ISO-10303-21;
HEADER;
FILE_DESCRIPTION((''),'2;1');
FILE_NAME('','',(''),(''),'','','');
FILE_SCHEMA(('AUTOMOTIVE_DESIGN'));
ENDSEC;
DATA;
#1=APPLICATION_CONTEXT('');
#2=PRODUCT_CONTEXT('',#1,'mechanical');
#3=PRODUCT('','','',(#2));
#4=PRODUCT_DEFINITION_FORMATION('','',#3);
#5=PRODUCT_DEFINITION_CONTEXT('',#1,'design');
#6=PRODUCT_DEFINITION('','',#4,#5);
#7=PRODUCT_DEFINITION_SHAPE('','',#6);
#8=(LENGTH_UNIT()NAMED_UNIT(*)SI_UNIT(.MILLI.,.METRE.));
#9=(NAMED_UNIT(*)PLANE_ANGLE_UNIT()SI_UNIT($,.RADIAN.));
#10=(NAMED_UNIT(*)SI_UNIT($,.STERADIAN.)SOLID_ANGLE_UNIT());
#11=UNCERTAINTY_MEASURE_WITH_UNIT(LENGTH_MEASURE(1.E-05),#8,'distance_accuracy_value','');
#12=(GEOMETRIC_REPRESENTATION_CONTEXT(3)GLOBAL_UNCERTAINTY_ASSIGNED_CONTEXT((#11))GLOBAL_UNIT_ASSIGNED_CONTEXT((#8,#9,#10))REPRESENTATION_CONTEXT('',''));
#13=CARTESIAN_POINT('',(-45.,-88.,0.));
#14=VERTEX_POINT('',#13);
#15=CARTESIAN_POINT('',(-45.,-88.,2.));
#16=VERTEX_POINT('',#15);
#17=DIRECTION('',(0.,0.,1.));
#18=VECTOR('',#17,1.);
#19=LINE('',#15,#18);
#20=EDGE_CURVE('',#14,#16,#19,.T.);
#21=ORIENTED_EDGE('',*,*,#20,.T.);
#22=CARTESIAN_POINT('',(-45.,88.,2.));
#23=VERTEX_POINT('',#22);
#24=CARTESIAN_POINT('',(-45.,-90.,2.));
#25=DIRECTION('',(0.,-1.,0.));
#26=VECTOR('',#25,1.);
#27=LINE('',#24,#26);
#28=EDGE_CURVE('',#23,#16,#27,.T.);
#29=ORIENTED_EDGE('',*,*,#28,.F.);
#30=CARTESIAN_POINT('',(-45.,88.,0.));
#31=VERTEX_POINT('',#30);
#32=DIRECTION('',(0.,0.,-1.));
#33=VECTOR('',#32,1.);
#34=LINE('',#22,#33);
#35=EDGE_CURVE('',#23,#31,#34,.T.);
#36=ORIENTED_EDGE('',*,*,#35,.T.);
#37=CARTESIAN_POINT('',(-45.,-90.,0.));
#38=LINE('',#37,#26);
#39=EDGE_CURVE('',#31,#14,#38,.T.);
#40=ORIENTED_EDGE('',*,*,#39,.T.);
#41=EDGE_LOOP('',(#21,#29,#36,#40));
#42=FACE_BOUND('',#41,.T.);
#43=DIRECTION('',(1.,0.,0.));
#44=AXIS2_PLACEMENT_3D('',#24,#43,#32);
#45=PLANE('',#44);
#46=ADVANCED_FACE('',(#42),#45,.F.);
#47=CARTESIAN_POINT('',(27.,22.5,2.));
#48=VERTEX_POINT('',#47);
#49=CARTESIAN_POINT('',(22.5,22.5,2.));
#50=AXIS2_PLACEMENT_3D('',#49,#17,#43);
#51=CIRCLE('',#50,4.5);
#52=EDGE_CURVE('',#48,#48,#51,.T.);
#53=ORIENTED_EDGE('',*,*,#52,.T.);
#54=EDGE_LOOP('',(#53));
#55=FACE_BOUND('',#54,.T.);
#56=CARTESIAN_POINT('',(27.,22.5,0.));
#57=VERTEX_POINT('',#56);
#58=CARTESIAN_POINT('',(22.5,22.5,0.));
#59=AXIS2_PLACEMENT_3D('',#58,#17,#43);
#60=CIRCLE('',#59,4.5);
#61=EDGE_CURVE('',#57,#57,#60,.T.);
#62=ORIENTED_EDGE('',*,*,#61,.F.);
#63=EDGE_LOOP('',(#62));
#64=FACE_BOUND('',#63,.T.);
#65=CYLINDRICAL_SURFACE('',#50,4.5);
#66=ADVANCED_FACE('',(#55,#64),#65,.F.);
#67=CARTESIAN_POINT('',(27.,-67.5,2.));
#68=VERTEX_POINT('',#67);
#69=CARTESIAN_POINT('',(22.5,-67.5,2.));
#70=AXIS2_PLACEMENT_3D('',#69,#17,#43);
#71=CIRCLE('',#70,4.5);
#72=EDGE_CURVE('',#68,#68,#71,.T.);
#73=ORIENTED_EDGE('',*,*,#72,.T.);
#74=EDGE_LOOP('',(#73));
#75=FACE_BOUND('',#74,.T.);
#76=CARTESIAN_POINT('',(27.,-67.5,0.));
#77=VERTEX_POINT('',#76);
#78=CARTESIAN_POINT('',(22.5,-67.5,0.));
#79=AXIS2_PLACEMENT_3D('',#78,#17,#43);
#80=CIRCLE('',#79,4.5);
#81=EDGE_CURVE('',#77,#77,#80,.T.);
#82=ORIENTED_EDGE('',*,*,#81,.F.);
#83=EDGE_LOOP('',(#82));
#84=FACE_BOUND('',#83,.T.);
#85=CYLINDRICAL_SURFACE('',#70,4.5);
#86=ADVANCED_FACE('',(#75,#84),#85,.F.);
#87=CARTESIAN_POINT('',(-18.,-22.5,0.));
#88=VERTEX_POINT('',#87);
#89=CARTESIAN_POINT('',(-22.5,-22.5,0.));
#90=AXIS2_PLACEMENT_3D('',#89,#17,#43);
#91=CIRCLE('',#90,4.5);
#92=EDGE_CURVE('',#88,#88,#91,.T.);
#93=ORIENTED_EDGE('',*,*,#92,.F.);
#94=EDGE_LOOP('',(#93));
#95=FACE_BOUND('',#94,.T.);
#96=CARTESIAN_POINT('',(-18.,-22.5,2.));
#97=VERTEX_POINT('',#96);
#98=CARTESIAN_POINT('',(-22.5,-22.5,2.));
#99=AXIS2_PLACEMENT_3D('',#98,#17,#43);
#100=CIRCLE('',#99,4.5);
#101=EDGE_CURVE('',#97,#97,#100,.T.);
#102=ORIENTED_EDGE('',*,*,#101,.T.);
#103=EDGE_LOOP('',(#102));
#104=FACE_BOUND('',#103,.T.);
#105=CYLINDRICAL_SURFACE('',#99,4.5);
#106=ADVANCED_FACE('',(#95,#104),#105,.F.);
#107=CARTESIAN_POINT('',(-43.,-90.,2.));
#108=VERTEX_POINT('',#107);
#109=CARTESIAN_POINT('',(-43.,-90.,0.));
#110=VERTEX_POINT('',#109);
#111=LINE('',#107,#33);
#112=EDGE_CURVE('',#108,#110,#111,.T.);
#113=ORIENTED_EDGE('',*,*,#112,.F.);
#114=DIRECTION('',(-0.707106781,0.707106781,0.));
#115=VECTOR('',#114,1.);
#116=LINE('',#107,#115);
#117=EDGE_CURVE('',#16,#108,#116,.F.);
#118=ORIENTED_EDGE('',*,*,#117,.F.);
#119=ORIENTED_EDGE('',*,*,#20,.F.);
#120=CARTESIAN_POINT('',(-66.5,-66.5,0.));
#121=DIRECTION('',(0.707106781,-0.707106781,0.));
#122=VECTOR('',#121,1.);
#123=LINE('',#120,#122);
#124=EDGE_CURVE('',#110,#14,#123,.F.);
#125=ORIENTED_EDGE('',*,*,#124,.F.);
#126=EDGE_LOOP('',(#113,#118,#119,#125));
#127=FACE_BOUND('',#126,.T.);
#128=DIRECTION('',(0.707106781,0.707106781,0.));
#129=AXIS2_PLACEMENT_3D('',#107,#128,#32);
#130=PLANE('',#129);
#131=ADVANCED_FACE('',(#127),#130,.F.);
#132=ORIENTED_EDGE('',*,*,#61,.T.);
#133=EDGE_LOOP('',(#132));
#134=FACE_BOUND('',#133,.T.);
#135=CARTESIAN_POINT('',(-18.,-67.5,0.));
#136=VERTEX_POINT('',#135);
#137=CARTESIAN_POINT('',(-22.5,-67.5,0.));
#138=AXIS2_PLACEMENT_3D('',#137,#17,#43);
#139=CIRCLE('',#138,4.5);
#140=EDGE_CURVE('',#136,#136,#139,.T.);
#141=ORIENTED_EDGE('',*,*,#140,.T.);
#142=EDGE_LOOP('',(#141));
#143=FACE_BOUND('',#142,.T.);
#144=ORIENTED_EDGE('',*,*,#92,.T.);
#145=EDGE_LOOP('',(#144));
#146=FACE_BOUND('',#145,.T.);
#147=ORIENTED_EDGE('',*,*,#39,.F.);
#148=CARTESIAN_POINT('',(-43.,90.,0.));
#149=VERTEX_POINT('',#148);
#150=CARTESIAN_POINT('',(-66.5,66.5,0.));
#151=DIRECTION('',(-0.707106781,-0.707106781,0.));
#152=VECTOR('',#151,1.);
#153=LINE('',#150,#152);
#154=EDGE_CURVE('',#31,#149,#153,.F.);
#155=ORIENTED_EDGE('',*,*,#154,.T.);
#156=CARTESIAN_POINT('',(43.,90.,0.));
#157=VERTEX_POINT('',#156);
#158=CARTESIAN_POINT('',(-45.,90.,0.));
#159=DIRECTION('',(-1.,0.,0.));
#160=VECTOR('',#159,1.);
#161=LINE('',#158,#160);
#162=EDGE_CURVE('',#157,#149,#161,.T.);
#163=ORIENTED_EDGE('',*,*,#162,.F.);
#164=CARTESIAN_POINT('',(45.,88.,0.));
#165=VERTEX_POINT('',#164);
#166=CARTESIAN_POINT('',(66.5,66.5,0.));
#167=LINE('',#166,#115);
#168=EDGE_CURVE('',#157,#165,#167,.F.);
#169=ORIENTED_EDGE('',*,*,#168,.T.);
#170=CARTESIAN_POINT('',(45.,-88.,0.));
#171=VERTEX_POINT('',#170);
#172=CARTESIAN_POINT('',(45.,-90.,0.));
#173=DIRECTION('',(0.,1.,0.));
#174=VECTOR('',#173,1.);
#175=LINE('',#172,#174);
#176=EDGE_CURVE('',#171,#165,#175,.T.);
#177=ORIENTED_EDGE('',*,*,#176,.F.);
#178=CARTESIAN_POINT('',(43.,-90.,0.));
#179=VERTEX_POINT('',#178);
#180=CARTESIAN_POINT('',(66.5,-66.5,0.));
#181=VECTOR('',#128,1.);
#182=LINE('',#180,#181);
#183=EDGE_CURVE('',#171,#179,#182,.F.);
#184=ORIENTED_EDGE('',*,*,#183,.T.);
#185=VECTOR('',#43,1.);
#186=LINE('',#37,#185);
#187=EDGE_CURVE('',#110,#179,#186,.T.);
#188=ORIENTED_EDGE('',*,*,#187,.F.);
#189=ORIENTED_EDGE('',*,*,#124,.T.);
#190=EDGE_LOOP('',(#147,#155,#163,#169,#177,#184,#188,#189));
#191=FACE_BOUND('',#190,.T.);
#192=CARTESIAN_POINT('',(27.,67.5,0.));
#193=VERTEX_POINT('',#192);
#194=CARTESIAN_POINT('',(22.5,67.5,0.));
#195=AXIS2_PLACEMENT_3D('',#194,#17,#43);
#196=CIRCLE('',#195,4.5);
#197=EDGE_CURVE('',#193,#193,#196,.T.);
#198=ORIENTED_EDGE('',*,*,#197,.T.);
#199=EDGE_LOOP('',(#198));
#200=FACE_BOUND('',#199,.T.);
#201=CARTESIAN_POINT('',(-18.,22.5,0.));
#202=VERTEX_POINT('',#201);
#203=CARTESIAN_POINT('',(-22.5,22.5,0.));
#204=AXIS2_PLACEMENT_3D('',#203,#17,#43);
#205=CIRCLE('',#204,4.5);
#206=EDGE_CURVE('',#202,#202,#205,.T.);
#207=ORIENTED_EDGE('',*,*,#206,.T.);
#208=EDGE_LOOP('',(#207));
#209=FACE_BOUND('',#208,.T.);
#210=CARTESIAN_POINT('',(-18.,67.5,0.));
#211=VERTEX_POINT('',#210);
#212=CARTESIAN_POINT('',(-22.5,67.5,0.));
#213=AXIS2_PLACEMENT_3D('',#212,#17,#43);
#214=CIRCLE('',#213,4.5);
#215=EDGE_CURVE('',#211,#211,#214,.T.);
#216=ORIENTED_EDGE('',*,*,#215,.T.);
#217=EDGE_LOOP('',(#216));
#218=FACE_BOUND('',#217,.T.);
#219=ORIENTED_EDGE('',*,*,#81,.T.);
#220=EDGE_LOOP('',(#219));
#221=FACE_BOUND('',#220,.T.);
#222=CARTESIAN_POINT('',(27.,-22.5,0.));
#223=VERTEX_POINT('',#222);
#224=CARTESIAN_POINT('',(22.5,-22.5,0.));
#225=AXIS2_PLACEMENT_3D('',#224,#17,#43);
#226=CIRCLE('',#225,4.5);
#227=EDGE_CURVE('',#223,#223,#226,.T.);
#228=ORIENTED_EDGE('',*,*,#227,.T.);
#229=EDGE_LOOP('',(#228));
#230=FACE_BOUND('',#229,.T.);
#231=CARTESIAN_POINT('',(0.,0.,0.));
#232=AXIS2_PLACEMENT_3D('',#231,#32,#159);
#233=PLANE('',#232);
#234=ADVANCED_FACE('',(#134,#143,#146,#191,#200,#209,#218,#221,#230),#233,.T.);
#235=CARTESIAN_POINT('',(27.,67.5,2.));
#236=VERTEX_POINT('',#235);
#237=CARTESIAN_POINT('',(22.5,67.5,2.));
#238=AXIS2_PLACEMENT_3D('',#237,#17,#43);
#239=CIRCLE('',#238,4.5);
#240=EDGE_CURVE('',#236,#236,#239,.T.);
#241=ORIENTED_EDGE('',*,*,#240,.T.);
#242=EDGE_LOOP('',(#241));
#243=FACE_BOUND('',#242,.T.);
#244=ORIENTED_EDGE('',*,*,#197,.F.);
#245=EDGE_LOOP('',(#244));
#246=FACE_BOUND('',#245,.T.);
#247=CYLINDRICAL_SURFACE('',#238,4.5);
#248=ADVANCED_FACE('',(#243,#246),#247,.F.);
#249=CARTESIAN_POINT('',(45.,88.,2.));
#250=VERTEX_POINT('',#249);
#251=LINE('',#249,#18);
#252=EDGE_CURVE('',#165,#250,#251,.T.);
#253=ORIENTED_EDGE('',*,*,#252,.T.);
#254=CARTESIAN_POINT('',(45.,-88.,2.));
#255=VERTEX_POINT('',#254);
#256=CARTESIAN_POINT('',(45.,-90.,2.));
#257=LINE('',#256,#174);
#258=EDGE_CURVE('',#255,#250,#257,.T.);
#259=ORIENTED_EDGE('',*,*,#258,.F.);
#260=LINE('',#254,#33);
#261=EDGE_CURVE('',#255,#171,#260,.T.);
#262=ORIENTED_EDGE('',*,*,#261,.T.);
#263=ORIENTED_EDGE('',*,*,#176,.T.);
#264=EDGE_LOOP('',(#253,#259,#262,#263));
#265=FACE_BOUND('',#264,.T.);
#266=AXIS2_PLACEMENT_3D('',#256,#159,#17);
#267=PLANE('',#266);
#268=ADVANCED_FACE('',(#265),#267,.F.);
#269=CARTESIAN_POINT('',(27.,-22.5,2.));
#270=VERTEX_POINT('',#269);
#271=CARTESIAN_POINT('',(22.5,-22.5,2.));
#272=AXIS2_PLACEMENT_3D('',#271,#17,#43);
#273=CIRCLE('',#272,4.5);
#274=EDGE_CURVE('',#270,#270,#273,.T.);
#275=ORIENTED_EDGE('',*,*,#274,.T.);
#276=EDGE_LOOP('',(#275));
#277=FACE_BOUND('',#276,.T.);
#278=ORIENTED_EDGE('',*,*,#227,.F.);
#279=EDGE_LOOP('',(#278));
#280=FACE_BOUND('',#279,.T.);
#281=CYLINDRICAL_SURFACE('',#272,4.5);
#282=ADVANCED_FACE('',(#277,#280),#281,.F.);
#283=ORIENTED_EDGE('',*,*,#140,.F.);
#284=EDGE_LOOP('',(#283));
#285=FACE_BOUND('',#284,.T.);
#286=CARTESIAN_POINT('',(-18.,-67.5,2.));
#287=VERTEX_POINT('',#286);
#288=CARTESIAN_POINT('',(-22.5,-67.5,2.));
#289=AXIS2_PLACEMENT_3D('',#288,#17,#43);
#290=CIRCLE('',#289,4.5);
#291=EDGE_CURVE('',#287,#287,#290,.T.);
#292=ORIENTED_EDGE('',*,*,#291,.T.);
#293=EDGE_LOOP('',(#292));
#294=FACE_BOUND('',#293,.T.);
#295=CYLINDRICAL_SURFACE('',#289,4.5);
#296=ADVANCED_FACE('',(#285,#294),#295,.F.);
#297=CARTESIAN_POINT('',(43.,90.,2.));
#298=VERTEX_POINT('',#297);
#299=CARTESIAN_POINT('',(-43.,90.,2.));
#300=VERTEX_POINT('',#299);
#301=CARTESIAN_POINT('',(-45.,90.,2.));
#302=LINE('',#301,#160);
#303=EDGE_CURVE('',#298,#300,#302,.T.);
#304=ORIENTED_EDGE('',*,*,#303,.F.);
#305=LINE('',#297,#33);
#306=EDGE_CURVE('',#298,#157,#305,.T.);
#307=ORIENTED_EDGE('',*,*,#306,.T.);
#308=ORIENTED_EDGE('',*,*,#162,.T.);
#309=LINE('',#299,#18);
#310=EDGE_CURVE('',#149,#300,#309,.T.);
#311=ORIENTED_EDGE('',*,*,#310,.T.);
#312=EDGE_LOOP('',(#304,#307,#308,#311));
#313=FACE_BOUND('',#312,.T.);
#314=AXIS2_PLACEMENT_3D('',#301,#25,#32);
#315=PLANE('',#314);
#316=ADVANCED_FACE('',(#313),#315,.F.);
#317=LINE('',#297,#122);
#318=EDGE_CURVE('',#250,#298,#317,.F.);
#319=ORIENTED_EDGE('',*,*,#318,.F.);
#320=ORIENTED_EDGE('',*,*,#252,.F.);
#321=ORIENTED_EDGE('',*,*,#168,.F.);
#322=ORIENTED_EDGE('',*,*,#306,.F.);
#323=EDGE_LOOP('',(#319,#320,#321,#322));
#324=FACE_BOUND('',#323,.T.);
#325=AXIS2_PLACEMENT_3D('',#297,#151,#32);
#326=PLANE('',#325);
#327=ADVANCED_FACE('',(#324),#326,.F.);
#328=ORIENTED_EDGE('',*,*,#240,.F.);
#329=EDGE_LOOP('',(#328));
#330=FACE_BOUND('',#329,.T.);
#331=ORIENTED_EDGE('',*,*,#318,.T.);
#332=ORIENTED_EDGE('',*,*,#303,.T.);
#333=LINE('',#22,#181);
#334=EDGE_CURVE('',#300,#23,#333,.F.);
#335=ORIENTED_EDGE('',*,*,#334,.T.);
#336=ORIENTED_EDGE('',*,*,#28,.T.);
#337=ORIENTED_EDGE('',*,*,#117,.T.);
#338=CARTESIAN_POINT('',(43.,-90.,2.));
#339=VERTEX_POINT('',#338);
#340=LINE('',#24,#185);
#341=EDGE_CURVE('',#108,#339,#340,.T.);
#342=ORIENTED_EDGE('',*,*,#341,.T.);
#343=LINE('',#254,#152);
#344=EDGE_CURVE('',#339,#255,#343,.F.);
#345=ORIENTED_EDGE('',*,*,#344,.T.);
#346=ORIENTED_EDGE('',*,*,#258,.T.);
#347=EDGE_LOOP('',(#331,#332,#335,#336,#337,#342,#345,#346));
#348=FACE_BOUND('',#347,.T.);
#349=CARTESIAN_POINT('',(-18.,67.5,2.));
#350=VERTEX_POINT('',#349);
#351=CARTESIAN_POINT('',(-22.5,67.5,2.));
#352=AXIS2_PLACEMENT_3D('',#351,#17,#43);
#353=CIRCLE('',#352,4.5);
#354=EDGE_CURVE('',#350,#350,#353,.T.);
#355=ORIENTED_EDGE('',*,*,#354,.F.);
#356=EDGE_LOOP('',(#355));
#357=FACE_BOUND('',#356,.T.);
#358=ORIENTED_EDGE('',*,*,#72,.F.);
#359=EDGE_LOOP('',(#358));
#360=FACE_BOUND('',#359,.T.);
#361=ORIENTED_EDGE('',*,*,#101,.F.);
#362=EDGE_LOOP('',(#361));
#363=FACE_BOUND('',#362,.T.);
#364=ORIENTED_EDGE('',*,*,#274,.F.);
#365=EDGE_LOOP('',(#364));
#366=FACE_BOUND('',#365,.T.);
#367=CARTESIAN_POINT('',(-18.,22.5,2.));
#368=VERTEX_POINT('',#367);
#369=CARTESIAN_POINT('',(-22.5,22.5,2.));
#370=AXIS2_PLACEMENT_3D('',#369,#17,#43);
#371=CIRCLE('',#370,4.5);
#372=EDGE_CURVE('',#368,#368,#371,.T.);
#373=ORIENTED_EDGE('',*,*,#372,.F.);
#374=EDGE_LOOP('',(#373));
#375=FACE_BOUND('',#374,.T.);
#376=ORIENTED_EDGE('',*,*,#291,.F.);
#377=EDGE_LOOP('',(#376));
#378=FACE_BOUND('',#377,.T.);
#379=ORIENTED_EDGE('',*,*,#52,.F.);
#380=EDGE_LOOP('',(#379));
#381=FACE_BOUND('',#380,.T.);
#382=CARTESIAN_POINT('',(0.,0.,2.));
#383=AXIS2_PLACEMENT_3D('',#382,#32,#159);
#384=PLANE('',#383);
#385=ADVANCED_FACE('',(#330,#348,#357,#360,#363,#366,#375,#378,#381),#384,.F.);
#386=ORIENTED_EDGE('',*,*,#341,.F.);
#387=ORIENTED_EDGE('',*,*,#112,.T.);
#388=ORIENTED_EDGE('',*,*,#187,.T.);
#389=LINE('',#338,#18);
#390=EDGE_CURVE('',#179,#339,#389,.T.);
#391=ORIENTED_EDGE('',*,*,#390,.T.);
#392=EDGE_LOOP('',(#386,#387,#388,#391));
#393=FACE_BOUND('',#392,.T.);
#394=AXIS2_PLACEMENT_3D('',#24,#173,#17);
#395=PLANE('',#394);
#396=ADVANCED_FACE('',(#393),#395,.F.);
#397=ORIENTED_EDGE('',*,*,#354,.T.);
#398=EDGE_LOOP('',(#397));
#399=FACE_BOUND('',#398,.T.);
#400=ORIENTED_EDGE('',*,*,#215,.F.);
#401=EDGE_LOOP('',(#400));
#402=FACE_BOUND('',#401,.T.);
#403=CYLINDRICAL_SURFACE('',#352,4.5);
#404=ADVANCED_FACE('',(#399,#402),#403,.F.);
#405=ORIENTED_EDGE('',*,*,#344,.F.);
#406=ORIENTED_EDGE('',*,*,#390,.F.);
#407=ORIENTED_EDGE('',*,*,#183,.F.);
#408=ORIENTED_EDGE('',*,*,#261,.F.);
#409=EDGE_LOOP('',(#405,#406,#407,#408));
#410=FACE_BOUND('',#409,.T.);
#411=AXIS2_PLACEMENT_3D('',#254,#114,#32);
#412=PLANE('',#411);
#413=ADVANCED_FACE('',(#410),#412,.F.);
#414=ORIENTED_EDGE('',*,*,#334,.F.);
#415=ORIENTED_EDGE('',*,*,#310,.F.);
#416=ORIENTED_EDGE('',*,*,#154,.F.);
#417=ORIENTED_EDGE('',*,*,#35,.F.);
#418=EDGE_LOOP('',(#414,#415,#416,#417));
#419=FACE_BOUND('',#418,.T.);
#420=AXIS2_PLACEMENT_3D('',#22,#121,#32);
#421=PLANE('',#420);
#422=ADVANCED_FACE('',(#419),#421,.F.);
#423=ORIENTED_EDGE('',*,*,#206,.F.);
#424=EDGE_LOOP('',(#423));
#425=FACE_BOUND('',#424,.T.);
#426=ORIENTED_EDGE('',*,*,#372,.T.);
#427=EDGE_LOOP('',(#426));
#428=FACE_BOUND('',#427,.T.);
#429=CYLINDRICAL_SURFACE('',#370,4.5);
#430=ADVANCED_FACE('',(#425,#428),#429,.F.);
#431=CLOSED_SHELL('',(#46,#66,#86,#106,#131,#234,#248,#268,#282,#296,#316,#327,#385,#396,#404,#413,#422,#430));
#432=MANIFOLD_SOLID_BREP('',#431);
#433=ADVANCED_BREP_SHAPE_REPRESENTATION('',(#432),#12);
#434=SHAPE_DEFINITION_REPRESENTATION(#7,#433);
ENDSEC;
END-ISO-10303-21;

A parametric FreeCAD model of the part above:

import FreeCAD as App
import Part
import Sketcher
from FreeCAD import Vector
Q = App.Units.Quantity


def edges_at(feature, points):
    """Names of the edges that pass closest to the given points."""
    edges = feature.Shape.Edges
    near = lambda p: min(range(len(edges)), key=lambda i: edges[i].distToShape(Part.Vertex(*p))[0])
    return sorted({f"Edge{near(p) + 1}" for p in points})


def add_polygon(sketch, points):
    """Adds a closed chain of lines whose ends are joined by coincident constraints."""
    first, n = sketch.GeometryCount, len(points)
    for a, b in zip(points, points[1:] + points[:1]):
        sketch.addGeometry(Part.LineSegment(App.Vector(*a, 0), App.Vector(*b, 0)), False)
    for i in range(n):
        sketch.addConstraint(Sketcher.Constraint("Coincident", first + i, 2, first + (i + 1) % n, 1))

doc = App.newDocument("Part")
body = doc.addObject("PartDesign::Body", "Body")

sketch1 = body.newObject("Sketcher::SketchObject", "Sketch")
sketch1.AttachmentSupport = (doc.getObject("XY_Plane"), [""])
sketch1.MapMode = "FlatFace"
add_polygon(sketch1, [(-45, 90), (-45, -90), (45, -90), (45, 90)])
sketch1.addConstraint([
    Sketcher.Constraint("Vertical", 0),
    Sketcher.Constraint("Horizontal", 1),
    Sketcher.Constraint("Vertical", 2),
    Sketcher.Constraint("Horizontal", 3),
    Sketcher.Constraint("Symmetric", 0, 2, 2, 2, -1, 1),
    Sketcher.Constraint("DistanceX", 1, 1, 1, 2, Q("90 mm")),
    Sketcher.Constraint("DistanceY", 0, 2, 0, 1, Q("180 mm")),
])
pad1 = body.newObject("PartDesign::Pad", "Pad")
pad1.Profile = sketch1
pad1.Length = 2
doc.recompute()

chamfer = body.newObject("PartDesign::Chamfer", "Chamfer")
chamfer.Base = (pad1, edges_at(pad1, [
    (45, -90, 1),
    (-45, -90, 1),
    (-45, 90, 1),
    (45, 90, 1),
]))
chamfer.Size = 2

sketch2 = body.newObject("Sketcher::SketchObject", "Sketch001")
sketch2.AttachmentSupport = (doc.getObject("XY_Plane"), [""])
sketch2.MapMode = "FlatFace"
sketch2.AttachmentOffset = App.Placement(Vector(0, 0, 2), App.Rotation())
sketch2.addGeometry([
    Part.Circle(Vector(-22.5, 22.5, 0), Vector(0, 0, 1), 4.5),
    Part.Circle(Vector(22.5, 22.5, 0), Vector(0, 0, 1), 4.5),
    Part.Circle(Vector(-22.5, -22.5, 0), Vector(0, 0, 1), 4.5),
    Part.Circle(Vector(22.5, -22.5, 0), Vector(0, 0, 1), 4.5),
    Part.Circle(Vector(-22.5, 67.5, 0), Vector(0, 0, 1), 4.5),
    Part.Circle(Vector(22.5, 67.5, 0), Vector(0, 0, 1), 4.5),
    Part.Circle(Vector(22.5, -67.5, 0), Vector(0, 0, 1), 4.5),
    Part.Circle(Vector(-22.5, -67.5, 0), Vector(0, 0, 1), 4.5),
], False)
sketch2.addConstraint([
    Sketcher.Constraint("Equal", 0, 1),
    Sketcher.Constraint("Equal", 1, 2),
    Sketcher.Constraint("Equal", 2, 3),
    Sketcher.Constraint("Equal", 3, 4),
    Sketcher.Constraint("Equal", 4, 5),
    Sketcher.Constraint("Equal", 5, 6),
    Sketcher.Constraint("Equal", 6, 7),
    Sketcher.Constraint("Symmetric", 1, 3, 2, 3, -1, 1),
    Sketcher.Constraint("Symmetric", 0, 3, 3, 3, -1, 1),
    Sketcher.Constraint("Symmetric", 4, 3, 6, 3, -1, 1),
    Sketcher.Constraint("Symmetric", 5, 3, 7, 3, -1, 1),
    Sketcher.Constraint("Symmetric", 0, 3, 1, 3, -2),
    Sketcher.Constraint("Symmetric", 4, 3, 5, 3, -2),
    Sketcher.Constraint("Vertical", 2, 3, 4, 3),
    Sketcher.Constraint("Diameter", 0, Q("9 mm")),
    Sketcher.Constraint("DistanceX", 0, 3, 1, 3, Q("45 mm")),
    Sketcher.Constraint("DistanceY", 2, 3, 0, 3, Q("45 mm")),
    Sketcher.Constraint("DistanceY", 0, 3, 4, 3, Q("45 mm")),
])
doc.recompute()
hole = body.newObject("PartDesign::Hole", "Hole")
hole.Profile = sketch2
hole.ThreadType = "None"
hole.Diameter = 9
hole.DepthType = "ThroughAll"

doc.recompute()
